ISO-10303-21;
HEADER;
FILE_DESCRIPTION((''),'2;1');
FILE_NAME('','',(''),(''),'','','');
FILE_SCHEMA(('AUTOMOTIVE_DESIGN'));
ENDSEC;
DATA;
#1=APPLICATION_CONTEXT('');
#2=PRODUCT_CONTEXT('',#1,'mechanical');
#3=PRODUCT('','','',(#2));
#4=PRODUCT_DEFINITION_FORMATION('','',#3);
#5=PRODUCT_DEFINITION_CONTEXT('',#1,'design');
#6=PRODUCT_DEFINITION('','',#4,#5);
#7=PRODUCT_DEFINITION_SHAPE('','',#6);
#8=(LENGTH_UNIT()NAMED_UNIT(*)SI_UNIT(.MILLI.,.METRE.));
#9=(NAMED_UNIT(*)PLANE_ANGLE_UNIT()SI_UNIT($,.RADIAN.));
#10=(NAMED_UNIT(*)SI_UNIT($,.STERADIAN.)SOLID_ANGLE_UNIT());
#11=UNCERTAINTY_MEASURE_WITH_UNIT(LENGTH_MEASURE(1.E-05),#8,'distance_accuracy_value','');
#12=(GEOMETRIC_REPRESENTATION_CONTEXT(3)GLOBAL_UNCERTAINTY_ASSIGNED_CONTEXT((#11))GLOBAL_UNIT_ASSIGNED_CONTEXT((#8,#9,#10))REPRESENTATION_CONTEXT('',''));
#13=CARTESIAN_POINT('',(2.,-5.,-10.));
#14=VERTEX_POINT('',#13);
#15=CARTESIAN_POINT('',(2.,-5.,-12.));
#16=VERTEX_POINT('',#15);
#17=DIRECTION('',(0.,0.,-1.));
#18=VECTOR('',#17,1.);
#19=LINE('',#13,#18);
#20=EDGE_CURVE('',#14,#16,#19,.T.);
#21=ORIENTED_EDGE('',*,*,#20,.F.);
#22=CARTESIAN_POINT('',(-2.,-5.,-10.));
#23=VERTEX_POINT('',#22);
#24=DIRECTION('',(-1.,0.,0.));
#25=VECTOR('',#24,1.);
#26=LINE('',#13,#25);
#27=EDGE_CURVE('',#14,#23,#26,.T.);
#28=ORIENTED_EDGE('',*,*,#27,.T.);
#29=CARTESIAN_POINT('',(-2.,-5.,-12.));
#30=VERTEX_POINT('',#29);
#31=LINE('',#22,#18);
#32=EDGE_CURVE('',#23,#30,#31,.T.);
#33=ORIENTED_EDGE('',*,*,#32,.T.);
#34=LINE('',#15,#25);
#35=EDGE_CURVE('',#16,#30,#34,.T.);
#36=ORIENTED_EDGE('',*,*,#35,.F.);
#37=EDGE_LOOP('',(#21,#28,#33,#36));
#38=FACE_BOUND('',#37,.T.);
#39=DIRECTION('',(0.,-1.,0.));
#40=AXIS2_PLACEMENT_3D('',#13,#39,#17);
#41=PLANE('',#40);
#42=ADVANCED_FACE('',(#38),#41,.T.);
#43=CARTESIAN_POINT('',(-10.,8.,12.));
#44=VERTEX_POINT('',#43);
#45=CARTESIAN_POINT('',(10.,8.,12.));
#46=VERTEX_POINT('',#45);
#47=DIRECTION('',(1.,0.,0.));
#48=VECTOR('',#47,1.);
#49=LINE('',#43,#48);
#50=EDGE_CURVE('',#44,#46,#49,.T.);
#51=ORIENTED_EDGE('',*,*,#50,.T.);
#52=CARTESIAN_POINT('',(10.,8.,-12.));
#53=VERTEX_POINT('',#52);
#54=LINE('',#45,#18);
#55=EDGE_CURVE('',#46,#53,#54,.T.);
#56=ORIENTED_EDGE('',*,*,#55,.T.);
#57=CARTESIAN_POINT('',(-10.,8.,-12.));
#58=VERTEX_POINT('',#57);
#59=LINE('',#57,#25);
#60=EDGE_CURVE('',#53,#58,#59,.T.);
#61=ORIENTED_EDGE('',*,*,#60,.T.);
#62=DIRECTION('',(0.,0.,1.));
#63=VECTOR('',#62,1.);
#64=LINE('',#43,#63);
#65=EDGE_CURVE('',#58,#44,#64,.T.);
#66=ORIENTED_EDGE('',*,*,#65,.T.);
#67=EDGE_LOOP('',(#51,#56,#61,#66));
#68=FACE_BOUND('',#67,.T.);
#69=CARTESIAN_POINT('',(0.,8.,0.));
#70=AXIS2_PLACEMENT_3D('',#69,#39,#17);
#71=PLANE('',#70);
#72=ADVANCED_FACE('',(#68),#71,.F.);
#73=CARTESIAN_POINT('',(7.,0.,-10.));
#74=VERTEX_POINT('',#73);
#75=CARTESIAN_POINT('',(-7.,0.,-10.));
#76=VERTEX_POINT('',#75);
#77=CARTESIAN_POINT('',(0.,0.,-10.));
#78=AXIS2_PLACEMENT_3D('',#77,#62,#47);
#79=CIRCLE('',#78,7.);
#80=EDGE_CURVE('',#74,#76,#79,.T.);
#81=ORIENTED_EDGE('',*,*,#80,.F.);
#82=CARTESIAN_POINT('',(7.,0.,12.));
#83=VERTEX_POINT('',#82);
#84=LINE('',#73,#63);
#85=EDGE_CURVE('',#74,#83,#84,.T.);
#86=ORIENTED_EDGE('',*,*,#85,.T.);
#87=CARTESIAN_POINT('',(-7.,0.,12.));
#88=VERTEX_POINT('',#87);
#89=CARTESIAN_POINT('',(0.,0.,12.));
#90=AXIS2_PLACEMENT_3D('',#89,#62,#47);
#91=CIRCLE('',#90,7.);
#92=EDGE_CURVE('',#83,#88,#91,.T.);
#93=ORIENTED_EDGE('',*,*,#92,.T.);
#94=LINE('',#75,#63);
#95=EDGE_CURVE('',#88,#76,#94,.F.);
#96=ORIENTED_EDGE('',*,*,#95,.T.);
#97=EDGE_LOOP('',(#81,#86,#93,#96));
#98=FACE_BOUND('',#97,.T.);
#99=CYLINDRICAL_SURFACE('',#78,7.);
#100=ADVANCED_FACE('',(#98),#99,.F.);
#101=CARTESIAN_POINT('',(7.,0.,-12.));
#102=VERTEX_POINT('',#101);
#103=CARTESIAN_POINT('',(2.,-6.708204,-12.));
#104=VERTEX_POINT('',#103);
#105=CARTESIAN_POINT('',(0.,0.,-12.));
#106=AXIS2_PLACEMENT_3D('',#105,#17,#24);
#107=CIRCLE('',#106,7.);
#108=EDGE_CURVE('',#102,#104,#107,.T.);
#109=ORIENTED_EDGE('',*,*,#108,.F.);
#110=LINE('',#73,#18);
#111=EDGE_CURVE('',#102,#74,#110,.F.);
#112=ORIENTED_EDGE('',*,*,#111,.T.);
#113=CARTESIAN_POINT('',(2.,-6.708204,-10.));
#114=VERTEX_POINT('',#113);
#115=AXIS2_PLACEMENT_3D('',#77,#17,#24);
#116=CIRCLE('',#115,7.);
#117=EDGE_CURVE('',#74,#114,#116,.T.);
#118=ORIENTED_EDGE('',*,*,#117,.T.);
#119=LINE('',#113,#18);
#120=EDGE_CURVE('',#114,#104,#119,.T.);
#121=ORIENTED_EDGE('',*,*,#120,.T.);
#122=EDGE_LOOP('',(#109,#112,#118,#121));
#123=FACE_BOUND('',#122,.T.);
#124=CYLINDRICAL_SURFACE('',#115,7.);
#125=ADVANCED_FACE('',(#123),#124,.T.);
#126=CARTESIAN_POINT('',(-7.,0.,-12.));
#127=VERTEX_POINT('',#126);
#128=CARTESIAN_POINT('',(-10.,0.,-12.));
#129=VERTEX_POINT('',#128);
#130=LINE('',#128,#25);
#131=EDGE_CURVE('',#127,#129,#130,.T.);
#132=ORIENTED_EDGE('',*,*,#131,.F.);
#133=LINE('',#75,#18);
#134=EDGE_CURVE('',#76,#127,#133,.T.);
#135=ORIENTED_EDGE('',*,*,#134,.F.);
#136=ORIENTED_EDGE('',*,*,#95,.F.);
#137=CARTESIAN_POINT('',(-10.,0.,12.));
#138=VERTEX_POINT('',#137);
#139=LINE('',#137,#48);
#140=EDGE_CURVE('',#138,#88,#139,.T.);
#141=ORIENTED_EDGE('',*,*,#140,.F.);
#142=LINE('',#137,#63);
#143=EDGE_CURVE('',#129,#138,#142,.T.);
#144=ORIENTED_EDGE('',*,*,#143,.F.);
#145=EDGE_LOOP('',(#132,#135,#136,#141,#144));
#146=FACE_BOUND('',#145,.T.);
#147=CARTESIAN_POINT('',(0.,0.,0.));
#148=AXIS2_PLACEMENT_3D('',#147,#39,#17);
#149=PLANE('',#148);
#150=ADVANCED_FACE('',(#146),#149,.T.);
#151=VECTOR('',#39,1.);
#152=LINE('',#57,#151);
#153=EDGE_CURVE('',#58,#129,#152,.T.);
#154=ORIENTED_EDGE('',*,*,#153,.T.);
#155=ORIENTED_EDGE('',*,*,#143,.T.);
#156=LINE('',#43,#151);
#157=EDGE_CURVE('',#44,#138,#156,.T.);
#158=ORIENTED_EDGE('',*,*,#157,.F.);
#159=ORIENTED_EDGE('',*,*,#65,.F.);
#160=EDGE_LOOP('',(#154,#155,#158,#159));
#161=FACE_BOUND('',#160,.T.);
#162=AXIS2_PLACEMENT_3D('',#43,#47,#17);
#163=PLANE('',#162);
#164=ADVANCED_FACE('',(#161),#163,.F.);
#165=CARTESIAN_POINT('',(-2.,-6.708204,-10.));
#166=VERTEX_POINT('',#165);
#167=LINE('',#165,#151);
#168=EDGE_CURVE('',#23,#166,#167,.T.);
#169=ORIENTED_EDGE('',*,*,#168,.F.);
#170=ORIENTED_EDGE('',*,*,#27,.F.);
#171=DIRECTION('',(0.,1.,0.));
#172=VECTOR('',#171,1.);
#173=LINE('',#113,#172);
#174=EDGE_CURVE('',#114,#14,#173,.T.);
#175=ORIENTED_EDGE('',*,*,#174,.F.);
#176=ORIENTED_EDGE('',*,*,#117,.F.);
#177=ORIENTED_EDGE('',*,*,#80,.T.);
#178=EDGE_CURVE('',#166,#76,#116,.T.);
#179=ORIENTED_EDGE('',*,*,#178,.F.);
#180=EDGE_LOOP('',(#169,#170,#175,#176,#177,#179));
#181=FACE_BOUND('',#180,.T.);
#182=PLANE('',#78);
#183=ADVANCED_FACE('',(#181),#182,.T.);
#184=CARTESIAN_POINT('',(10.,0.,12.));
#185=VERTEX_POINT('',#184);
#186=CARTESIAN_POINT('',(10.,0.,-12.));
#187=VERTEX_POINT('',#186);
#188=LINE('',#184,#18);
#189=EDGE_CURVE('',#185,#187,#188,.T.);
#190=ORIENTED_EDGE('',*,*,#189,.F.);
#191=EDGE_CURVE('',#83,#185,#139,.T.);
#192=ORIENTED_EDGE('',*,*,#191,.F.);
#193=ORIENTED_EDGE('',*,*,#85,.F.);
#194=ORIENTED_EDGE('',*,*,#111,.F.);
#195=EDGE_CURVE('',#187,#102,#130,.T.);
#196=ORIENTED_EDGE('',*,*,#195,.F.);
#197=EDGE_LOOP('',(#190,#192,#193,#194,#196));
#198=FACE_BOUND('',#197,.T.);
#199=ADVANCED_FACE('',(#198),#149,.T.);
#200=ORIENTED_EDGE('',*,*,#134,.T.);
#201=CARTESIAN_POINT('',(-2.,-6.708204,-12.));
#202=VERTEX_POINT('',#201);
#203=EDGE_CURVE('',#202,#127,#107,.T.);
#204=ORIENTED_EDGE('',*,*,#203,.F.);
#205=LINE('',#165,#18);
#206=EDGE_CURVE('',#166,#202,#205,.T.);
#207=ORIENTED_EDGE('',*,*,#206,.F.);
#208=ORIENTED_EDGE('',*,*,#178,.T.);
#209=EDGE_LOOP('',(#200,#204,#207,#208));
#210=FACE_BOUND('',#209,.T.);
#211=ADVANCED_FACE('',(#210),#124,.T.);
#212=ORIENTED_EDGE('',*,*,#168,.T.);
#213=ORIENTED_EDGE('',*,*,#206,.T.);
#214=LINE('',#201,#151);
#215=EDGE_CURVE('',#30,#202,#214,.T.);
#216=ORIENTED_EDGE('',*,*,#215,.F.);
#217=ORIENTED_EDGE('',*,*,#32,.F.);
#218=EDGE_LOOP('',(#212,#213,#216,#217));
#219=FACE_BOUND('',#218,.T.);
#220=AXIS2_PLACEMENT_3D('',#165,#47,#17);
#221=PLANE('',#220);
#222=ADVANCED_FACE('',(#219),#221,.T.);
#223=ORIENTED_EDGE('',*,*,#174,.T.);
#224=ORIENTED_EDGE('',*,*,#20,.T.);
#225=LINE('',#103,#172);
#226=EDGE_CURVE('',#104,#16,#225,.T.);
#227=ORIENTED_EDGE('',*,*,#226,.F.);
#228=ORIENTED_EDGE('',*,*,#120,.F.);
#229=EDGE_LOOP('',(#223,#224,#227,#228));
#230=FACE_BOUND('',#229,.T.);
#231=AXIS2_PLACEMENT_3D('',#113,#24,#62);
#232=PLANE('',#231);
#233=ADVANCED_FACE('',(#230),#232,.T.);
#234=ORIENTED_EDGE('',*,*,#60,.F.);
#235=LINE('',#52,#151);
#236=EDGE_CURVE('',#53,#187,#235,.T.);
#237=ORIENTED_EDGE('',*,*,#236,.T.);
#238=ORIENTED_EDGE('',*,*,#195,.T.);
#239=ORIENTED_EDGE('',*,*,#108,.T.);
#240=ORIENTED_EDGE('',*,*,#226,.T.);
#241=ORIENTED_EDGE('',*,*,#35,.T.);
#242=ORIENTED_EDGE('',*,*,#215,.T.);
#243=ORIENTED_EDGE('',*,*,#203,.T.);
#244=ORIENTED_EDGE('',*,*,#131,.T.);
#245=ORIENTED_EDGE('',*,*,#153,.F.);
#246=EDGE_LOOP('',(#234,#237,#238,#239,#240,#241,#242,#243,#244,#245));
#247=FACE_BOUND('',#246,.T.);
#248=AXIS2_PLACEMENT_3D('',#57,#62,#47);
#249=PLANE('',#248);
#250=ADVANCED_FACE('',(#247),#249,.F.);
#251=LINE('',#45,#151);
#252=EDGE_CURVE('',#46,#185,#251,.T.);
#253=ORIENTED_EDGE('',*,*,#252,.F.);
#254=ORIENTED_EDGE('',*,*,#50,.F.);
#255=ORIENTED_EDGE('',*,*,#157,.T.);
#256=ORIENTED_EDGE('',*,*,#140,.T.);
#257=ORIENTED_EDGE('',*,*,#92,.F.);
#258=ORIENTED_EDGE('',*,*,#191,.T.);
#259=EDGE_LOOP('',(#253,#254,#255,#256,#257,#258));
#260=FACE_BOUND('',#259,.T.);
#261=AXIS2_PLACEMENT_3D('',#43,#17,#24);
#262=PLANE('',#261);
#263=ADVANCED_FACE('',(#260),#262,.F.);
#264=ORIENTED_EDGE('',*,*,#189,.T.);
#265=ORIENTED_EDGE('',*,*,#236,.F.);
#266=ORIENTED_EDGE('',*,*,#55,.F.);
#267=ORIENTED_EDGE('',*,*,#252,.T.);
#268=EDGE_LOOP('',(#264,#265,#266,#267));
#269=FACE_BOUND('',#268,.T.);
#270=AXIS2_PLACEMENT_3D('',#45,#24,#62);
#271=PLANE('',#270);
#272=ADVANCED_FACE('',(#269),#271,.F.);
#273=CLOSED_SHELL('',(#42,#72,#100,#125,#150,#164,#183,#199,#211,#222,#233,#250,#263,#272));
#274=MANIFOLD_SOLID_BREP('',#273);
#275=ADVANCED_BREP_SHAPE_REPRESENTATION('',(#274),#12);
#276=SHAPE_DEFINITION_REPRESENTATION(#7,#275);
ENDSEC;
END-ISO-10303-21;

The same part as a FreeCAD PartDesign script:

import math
import FreeCAD as App
import Part
import Sketcher

V = App.Vector
Q = App.Units.Quantity


def add_polygon(sketch, points):
    """Adds a closed chain of lines whose ends are joined by coincident constraints."""
    first, n = sketch.GeometryCount, len(points)
    for a, b in zip(points, points[1:] + points[:1]):
        sketch.addGeometry(Part.LineSegment(App.Vector(*a, 0), App.Vector(*b, 0)), False)
    for i in range(n):
        sketch.addConstraint(Sketcher.Constraint("Coincident", first + i, 2, first + (i + 1) % n, 1))

doc = App.newDocument("Part")
params = doc.addObject("Spreadsheet::Sheet", "Params")
for row, (alias, value) in enumerate([
    ("sketch1_width", "20 mm"),
    ("sketch1_height", "24 mm"),
    ("pad1_length", "8 mm"),
    ("sketch2_diameter", "14 mm"),
    ("pocket1_length", "22 mm"),
    ("sketch3_radius", "7 mm"),
    ("sketch3_width", "4 mm"),
    ("pad2_length", "2 mm"),
], start=1):
    params.set(f"A{row}", alias)
    params.set(f"B{row}", "=" + value)
    params.setAlias(f"B{row}", alias)

body = doc.addObject("PartDesign::Body", "Body")

sketch1 = body.newObject("Sketcher::SketchObject", "Sketch")
sketch1.AttachmentSupport = (doc.getObject("XZ_Plane"), [""])
sketch1.MapMode = "FlatFace"
add_polygon(sketch1, [(-10, -12), (-10, 12), (10, 12), (10, -12)])
sketch1.addConstraint([
    Sketcher.Constraint("Vertical", 0),
    Sketcher.Constraint("Horizontal", 1),
    Sketcher.Constraint("Vertical", 2),
    Sketcher.Constraint("Horizontal", 3),
    Sketcher.Constraint("Symmetric", 0, 2, 2, 2, -1, 1),
    Sketcher.Constraint("DistanceX", 1, 1, 1, 2, Q("20 mm")),
    Sketcher.Constraint("DistanceY", 0, 1, 0, 2, Q("24 mm")),
])
sketch1.setExpression("Constraints[9]", "Params.sketch1_width")
sketch1.setExpression("Constraints[10]", "Params.sketch1_height")
pad1 = body.newObject("PartDesign::Pad", "Pad")
pad1.Profile = sketch1
pad1.setExpression("Length", "Params.pad1_length")
pad1.Reversed = True

sketch2 = body.newObject("Sketcher::SketchObject", "Sketch001")
sketch2.AttachmentSupport = (doc.getObject("XY_Plane"), [""])
sketch2.MapMode = "FlatFace"
sketch2.AttachmentOffset = App.Placement(V(0, 0, 12), App.Rotation())
sketch2.addGeometry(Part.Circle(V(0, 0, 0), V(0, 0, 1), 7), False)
sketch2.addConstraint([
    Sketcher.Constraint("Coincident", 0, 3, -1, 1),
    Sketcher.Constraint("Diameter", 0, Q("14 mm")),
])
sketch2.setExpression("Constraints[1]", "Params.sketch2_diameter")
pocket1 = body.newObject("PartDesign::Pocket", "Pocket")
pocket1.Profile = sketch2
pocket1.setExpression("Length", "Params.pocket1_length")

sketch3 = body.newObject("Sketcher::SketchObject", "Sketch002")
sketch3.AttachmentSupport = (doc.getObject("XY_Plane"), [""])
sketch3.MapMode = "FlatFace"
sketch3.AttachmentOffset = App.Placement(V(0, 0, -12), App.Rotation())
sketch3.addGeometry([
    Part.LineSegment(V(2, -6.7, 0), V(2, -5, 0)),
    Part.LineSegment(V(2, -5, 0), V(-2, -5, 0)),
    Part.LineSegment(V(-2, -5, 0), V(-2, -6.7, 0)),
    Part.ArcOfCircle(Part.Circle(V(0, 0, 0), V(0, 0, 1), 7), math.radians(-73), math.radians(253)),
], False)
sketch3.addConstraint([
    Sketcher.Constraint("Coincident", 0, 2, 1, 1),
    Sketcher.Constraint("Coincident", 1, 2, 2, 1),
    Sketcher.Constraint("Coincident", 2, 2, 3, 2),
    Sketcher.Constraint("Coincident", 3, 1, 0, 1),
    Sketcher.Constraint("Vertical", 0),
    Sketcher.Constraint("Horizontal", 1),
    Sketcher.Constraint("Vertical", 2),
    Sketcher.Constraint("Coincident", 3, 3, -1, 1),
    Sketcher.Constraint("Horizontal", 2, 2, 3, 1),
    Sketcher.Constraint("Radius", 3, Q("7 mm")),
    Sketcher.Constraint("DistanceX", 1, 2, 1, 1, Q("4 mm")),
    Sketcher.Constraint("DistanceY", 0, 2, -1, 1, Q("5 mm")),
])
sketch3.setExpression("Constraints[9]", "Params.sketch3_radius")
sketch3.setExpression("Constraints[10]", "Params.sketch3_width")
pad2 = body.newObject("PartDesign::Pad", "Pad001")
pad2.Profile = sketch3
pad2.setExpression("Length", "Params.pad2_length")

doc.recompute()
